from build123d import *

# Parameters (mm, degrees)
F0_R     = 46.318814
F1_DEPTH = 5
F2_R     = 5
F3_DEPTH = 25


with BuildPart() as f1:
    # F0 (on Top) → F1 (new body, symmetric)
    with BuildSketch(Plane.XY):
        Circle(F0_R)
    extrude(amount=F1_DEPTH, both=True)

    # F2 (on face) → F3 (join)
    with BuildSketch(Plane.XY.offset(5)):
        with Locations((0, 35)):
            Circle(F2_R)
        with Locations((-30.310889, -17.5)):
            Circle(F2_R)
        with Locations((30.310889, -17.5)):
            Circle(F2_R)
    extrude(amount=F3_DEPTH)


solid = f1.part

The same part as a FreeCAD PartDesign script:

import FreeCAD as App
import Part
import Sketcher

V = App.Vector
Q = App.Units.Quantity

doc = App.newDocument("Part")
params = doc.addObject("Spreadsheet::Sheet", "Params")
for row, (alias, value) in enumerate([
    ("pad1_length", "10 mm"),
    ("sketch2_diameter", "10 mm"),
    ("pad2_length", "25 mm"),
], start=1):
    params.set(f"A{row}", alias)
    params.set(f"B{row}", "=" + value)
    params.setAlias(f"B{row}", alias)

body = doc.addObject("PartDesign::Body", "Body")

sketch1 = doc.addObject("Sketcher::SketchObject", "Sketch")
body.addObject(sketch1)
sketch1.AttachmentSupport = (doc.XY_Plane, [""])
sketch1.MapMode = "FlatFace"
sketch1.addGeometry(Part.Circle(V(0, 0, 0), V(0, 0, 1), 46.318814), False)
sketch1.addConstraint([
    Sketcher.Constraint("Coincident", 0, 3, -1, 1),
    Sketcher.Constraint("Diameter", 0, Q("92.637628 mm")),
])
pad1 = doc.addObject("PartDesign::Pad", "Pad")
body.addObject(pad1)
pad1.Profile = sketch1
pad1.setExpression("Length", "Params.pad1_length")
pad1.Midplane = True

sketch2 = doc.addObject("Sketcher::SketchObject", "Sketch001")
body.addObject(sketch2)
sketch2.AttachmentSupport = (doc.XY_Plane, [""])
sketch2.MapMode = "FlatFace"
sketch2.AttachmentOffset = App.Placement(V(0, 0, 5), App.Rotation())
sketch2.addGeometry([
    Part.Circle(V(0, 35, 0), V(0, 0, 1), 5),
    Part.Circle(V(-30.310889, -17.5, 0), V(0, 0, 1), 5),
    Part.Circle(V(30.310889, -17.5, 0), V(0, 0, 1), 5),
], False)
sketch2.addConstraint([
    Sketcher.Constraint("Equal", 0, 1),
    Sketcher.Constraint("Equal", 1, 2),
    Sketcher.Constraint("Symmetric", 1, 3, 2, 3, -2),
    Sketcher.Constraint("PointOnObject", 0, 3, -2),
    Sketcher.Constraint("Diameter", 0, Q("10 mm")),
    Sketcher.Constraint("DistanceY", -1, 1, 0, 3, Q("35 mm")),
    Sketcher.Constraint("DistanceY", 1, 3, -1, 1, Q("17.5 mm")),
    Sketcher.Constraint("DistanceX", 1, 3, -1, 1, Q("30.310889 mm")),
])
sketch2.setExpression("Constraints[4]", "Params.sketch2_diameter")
pad2 = doc.addObject("PartDesign::Pad", "Pad001")
body.addObject(pad2)
pad2.Profile = sketch2
pad2.setExpression("Length", "Params.pad2_length")

doc.recompute()
